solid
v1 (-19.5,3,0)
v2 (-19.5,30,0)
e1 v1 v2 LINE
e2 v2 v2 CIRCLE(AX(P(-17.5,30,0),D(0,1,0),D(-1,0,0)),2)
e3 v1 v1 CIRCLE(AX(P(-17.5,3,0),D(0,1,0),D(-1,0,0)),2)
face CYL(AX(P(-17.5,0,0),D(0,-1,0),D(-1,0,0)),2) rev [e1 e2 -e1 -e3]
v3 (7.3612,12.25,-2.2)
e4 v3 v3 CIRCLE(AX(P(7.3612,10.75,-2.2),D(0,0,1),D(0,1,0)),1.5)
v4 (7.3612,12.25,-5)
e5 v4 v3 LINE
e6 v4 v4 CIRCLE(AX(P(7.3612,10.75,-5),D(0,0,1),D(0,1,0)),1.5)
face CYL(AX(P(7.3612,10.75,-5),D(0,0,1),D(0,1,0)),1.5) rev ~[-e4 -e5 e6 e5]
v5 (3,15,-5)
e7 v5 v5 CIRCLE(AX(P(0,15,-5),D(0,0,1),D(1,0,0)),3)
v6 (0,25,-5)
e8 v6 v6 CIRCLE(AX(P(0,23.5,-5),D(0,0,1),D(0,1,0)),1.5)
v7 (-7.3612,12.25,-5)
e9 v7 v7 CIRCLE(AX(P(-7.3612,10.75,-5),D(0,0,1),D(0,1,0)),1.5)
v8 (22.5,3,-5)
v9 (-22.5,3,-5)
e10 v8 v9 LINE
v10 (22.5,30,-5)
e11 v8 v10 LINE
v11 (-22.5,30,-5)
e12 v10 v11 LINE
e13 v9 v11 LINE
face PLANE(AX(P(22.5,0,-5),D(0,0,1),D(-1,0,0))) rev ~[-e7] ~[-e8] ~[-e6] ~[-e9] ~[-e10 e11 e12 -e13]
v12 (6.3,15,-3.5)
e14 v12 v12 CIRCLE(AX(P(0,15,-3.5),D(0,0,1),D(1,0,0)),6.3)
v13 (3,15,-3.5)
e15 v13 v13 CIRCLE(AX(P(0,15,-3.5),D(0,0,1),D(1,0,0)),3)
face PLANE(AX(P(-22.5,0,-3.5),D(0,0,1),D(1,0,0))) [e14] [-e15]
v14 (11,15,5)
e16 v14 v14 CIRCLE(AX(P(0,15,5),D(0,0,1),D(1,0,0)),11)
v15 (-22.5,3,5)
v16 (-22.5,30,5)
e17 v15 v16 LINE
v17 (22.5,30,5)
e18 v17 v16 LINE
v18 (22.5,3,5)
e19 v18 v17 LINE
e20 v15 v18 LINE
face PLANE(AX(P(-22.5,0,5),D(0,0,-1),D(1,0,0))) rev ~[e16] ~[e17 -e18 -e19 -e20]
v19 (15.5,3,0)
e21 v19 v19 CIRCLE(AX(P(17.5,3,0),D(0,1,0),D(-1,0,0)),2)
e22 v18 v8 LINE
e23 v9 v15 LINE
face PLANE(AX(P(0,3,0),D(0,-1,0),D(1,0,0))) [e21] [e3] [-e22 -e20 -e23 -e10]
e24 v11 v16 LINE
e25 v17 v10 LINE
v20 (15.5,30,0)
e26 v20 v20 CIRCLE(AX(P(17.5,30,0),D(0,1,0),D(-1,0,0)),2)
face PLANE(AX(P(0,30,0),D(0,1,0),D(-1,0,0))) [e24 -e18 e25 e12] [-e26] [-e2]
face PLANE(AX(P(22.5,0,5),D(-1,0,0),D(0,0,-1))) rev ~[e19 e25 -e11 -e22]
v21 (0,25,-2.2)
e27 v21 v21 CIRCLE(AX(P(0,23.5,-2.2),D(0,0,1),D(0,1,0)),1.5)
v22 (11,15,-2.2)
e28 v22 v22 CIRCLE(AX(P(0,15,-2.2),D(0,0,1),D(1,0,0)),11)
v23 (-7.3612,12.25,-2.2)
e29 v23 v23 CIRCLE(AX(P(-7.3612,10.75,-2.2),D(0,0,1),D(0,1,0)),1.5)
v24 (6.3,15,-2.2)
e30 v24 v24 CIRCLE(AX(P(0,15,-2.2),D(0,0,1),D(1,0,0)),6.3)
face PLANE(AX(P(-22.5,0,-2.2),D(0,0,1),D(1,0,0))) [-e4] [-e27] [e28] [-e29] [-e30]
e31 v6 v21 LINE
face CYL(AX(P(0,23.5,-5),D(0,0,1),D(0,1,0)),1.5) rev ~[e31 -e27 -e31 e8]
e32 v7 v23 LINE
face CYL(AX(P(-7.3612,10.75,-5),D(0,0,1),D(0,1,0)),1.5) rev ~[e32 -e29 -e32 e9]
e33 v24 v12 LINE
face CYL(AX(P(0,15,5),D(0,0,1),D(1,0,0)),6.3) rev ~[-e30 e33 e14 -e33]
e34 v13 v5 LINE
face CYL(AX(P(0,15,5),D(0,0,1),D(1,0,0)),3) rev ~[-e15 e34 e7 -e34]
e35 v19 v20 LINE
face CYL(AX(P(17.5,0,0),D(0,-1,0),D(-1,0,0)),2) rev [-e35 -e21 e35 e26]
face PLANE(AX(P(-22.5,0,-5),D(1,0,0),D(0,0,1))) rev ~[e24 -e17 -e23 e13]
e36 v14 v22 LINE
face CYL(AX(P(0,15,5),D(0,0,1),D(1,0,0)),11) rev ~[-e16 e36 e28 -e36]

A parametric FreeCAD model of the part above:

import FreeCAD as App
import Part
import Sketcher
Q = App.Units.Quantity

doc = App.newDocument("Part")
body = doc.addObject("PartDesign::Body", "Body")

# Sketch on XZ plane
sketch1 = body.newObject("Sketcher::SketchObject", "Sketch")
sketch1.AttachmentSupport = (doc.getObject("XZ_Plane"), [""])
sketch1.MapMode = "FlatFace"
sketch1.addGeometry([
    Part.LineSegment(App.Vector(-22.5, -5, 0), App.Vector(-22.5, 5, 0)),  # 0
    Part.LineSegment(App.Vector(-22.5, 5, 0), App.Vector(22.5, 5, 0)),  # 1
    Part.LineSegment(App.Vector(22.5, 5, 0), App.Vector(22.5, -5, 0)),  # 2
    Part.LineSegment(App.Vector(22.5, -5, 0), App.Vector(-22.5, -5, 0)),  # 3
    Part.Circle(App.Vector(17.5, 0, 0), App.Vector(0, 0, 1), 2),  # 4
    Part.Circle(App.Vector(-17.5, 0, 0), App.Vector(0, 0, 1), 2),  # 5
], False)
sketch1.addConstraint([
    Sketcher.Constraint("Coincident", 0, 2, 1, 1),
    Sketcher.Constraint("Coincident", 1, 2, 2, 1),
    Sketcher.Constraint("Coincident", 2, 2, 3, 1),
    Sketcher.Constraint("Coincident", 3, 2, 0, 1),
    Sketcher.Constraint("Vertical", 0),
    Sketcher.Constraint("Horizontal", 1),
    Sketcher.Constraint("Vertical", 2),
    Sketcher.Constraint("Horizontal", 3),
    Sketcher.Constraint("Equal", 4, 5),
    Sketcher.Constraint("Symmetric", 4, 3, 5, 3, -1, 1),
    Sketcher.Constraint("Symmetric", 0, 2, 2, 2, -1, 1),
    Sketcher.Constraint("PointOnObject", 4, 3, -1),
    Sketcher.Constraint("Diameter", 4, Q("4 mm")),
    Sketcher.Constraint("DistanceX", 1, 1, 1, 2, Q("45 mm")),
    Sketcher.Constraint("DistanceY", 0, 1, 0, 2, Q("10 mm")),
    Sketcher.Constraint("DistanceX", -1, 1, 4, 3, Q("17.5 mm")),
])
pad1 = body.newObject("PartDesign::Pad", "Pad")
pad1.Profile = sketch1
pad1.Length = 30
pad1.Reversed = True

# Sketch on XY plane
sketch2 = body.newObject("Sketcher::SketchObject", "Sketch001")
sketch2.AttachmentSupport = (doc.getObject("XY_Plane"), [""])
sketch2.MapMode = "FlatFace"
sketch2.AttachmentOffset = App.Placement(App.Vector(0, 0, 5), App.Rotation())
sketch2.addGeometry(Part.Circle(App.Vector(0, 15, 0), App.Vector(0, 0, 1), 3), False)
sketch2.addConstraint([
    Sketcher.Constraint("PointOnObject", 0, 3, -2),
    Sketcher.Constraint("Diameter", 0, Q("6 mm")),
    Sketcher.Constraint("DistanceY", -1, 1, 0, 3, Q("15 mm")),
])
pocket1 = body.newObject("PartDesign::Pocket", "Pocket")
pocket1.Profile = sketch2
pocket1.Length = 30

# Sketch on XY plane
sketch3 = body.newObject("Sketcher::SketchObject", "Sketch002")
sketch3.AttachmentSupport = (doc.getObject("XY_Plane"), [""])
sketch3.MapMode = "FlatFace"
sketch3.AttachmentOffset = App.Placement(App.Vector(0, 0, 5), App.Rotation())
sketch3.addGeometry(Part.Circle(App.Vector(0, 15, 0), App.Vector(0, 0, 1), 6.3), False)
sketch3.addConstraint([
    Sketcher.Constraint("PointOnObject", 0, 3, -2),
    Sketcher.Constraint("Diameter", 0, Q("12.6 mm")),
    Sketcher.Constraint("DistanceY", -1, 1, 0, 3, Q("15 mm")),
])
pocket2 = body.newObject("PartDesign::Pocket", "Pocket001")
pocket2.Profile = sketch3
pocket2.Length = 8.5

# Sketch on XY plane
sketch4 = body.newObject("Sketcher::SketchObject", "Sketch003")
sketch4.AttachmentSupport = (doc.getObject("XY_Plane"), [""])
sketch4.MapMode = "FlatFace"
sketch4.AttachmentOffset = App.Placement(App.Vector(0, 0, 5), App.Rotation())
sketch4.addGeometry(Part.Circle(App.Vector(0, 15, 0), App.Vector(0, 0, 1), 11), False)
sketch4.addConstraint([
    Sketcher.Constraint("PointOnObject", 0, 3, -2),
    Sketcher.Constraint("Diameter", 0, Q("22 mm")),
    Sketcher.Constraint("DistanceY", -1, 1, 0, 3, Q("15 mm")),
])
pocket3 = body.newObject("PartDesign::Pocket", "Pocket002")
pocket3.Profile = sketch4
pocket3.Length = 7.2

# Sketch on XZ plane
sketch5 = body.newObject("Sketcher::SketchObject", "Sketch004")
sketch5.AttachmentSupport = (doc.getObject("XZ_Plane"), [""])
sketch5.MapMode = "FlatFace"
sketch5.addGeometry([
    Part.LineSegment(App.Vector(-22.5, 5, 0), App.Vector(-22.5, -5, 0)),  # 0
    Part.LineSegment(App.Vector(-22.5, -5, 0), App.Vector(22.5, -5, 0)),  # 1
    Part.LineSegment(App.Vector(22.5, -5, 0), App.Vector(22.5, 5, 0)),  # 2
    Part.LineSegment(App.Vector(22.5, 5, 0), App.Vector(-22.5, 5, 0)),  # 3
    Part.Circle(App.Vector(-17.5, 0, 0), App.Vector(0, 0, 1), 2),  # 4
    Part.Circle(App.Vector(17.5, 0, 0), App.Vector(0, 0, 1), 2),  # 5
], False)
sketch5.addConstraint([
    Sketcher.Constraint("Coincident", 0, 2, 1, 1),
    Sketcher.Constraint("Coincident", 1, 2, 2, 1),
    Sketcher.Constraint("Coincident", 2, 2, 3, 1),
    Sketcher.Constraint("Coincident", 3, 2, 0, 1),
    Sketcher.Constraint("Vertical", 0),
    Sketcher.Constraint("Horizontal", 1),
    Sketcher.Constraint("Vertical", 2),
    Sketcher.Constraint("Horizontal", 3),
    Sketcher.Constraint("Equal", 4, 5),
    Sketcher.Constraint("Symmetric", 4, 3, 5, 3, -1, 1),
    Sketcher.Constraint("Symmetric", 0, 2, 2, 2, -1, 1),
    Sketcher.Constraint("PointOnObject", 4, 3, -1),
    Sketcher.Constraint("Diameter", 4, Q("4 mm")),
    Sketcher.Constraint("DistanceX", 1, 1, 1, 2, Q("45 mm")),
    Sketcher.Constraint("DistanceY", 0, 2, 0, 1, Q("10 mm")),
    Sketcher.Constraint("DistanceX", 4, 3, 5, 3, Q("35 mm")),
])
pocket4 = body.newObject("PartDesign::Pocket", "Pocket003")
pocket4.Profile = sketch5
pocket4.Length = 3

# Sketch on XY plane
sketch6 = body.newObject("Sketcher::SketchObject", "Sketch005")
sketch6.AttachmentSupport = (doc.getObject("XY_Plane"), [""])
sketch6.MapMode = "FlatFace"
sketch6.AttachmentOffset = App.Placement(App.Vector(0, 0, -5), App.Rotation())
sketch6.addGeometry([
    Part.Circle(App.Vector(0, 15, 0), App.Vector(0, 0, 1), 1.5),
    Part.Circle(App.Vector(7.3612, 10.75, 0), App.Vector(0, 0, 1), 1.5),
    Part.Circle(App.Vector(-7.3612, 10.75, 0), App.Vector(0, 0, 1), 1.5),
    Part.Circle(App.Vector(0, 23.5, 0), App.Vector(0, 0, 1), 1.5),
], False)
sketch6.addConstraint([
    Sketcher.Constraint("Equal", 0, 1),
    Sketcher.Constraint("Equal", 1, 2),
    Sketcher.Constraint("Equal", 2, 3),
    Sketcher.Constraint("Symmetric", 1, 3, 2, 3, -2),
    Sketcher.Constraint("PointOnObject", 0, 3, -2),
    Sketcher.Constraint("PointOnObject", 3, 3, -2),
    Sketcher.Constraint("Diameter", 0, Q("3 mm")),
    Sketcher.Constraint("DistanceY", -1, 1, 0, 3, Q("15 mm")),
    Sketcher.Constraint("DistanceY", -1, 1, 3, 3, Q("23.5 mm")),
    Sketcher.Constraint("DistanceY", -1, 1, 1, 3, Q("10.75 mm")),
    Sketcher.Constraint("DistanceX", -1, 1, 1, 3, Q("7.3612 mm")),
])
doc.recompute()
hole = body.newObject("PartDesign::Hole", "Hole")
hole.Profile = sketch6
hole.ThreadType = "None"
hole.Diameter = 3
hole.DepthType = "ThroughAll"
hole.Reversed = True

doc.recompute()
